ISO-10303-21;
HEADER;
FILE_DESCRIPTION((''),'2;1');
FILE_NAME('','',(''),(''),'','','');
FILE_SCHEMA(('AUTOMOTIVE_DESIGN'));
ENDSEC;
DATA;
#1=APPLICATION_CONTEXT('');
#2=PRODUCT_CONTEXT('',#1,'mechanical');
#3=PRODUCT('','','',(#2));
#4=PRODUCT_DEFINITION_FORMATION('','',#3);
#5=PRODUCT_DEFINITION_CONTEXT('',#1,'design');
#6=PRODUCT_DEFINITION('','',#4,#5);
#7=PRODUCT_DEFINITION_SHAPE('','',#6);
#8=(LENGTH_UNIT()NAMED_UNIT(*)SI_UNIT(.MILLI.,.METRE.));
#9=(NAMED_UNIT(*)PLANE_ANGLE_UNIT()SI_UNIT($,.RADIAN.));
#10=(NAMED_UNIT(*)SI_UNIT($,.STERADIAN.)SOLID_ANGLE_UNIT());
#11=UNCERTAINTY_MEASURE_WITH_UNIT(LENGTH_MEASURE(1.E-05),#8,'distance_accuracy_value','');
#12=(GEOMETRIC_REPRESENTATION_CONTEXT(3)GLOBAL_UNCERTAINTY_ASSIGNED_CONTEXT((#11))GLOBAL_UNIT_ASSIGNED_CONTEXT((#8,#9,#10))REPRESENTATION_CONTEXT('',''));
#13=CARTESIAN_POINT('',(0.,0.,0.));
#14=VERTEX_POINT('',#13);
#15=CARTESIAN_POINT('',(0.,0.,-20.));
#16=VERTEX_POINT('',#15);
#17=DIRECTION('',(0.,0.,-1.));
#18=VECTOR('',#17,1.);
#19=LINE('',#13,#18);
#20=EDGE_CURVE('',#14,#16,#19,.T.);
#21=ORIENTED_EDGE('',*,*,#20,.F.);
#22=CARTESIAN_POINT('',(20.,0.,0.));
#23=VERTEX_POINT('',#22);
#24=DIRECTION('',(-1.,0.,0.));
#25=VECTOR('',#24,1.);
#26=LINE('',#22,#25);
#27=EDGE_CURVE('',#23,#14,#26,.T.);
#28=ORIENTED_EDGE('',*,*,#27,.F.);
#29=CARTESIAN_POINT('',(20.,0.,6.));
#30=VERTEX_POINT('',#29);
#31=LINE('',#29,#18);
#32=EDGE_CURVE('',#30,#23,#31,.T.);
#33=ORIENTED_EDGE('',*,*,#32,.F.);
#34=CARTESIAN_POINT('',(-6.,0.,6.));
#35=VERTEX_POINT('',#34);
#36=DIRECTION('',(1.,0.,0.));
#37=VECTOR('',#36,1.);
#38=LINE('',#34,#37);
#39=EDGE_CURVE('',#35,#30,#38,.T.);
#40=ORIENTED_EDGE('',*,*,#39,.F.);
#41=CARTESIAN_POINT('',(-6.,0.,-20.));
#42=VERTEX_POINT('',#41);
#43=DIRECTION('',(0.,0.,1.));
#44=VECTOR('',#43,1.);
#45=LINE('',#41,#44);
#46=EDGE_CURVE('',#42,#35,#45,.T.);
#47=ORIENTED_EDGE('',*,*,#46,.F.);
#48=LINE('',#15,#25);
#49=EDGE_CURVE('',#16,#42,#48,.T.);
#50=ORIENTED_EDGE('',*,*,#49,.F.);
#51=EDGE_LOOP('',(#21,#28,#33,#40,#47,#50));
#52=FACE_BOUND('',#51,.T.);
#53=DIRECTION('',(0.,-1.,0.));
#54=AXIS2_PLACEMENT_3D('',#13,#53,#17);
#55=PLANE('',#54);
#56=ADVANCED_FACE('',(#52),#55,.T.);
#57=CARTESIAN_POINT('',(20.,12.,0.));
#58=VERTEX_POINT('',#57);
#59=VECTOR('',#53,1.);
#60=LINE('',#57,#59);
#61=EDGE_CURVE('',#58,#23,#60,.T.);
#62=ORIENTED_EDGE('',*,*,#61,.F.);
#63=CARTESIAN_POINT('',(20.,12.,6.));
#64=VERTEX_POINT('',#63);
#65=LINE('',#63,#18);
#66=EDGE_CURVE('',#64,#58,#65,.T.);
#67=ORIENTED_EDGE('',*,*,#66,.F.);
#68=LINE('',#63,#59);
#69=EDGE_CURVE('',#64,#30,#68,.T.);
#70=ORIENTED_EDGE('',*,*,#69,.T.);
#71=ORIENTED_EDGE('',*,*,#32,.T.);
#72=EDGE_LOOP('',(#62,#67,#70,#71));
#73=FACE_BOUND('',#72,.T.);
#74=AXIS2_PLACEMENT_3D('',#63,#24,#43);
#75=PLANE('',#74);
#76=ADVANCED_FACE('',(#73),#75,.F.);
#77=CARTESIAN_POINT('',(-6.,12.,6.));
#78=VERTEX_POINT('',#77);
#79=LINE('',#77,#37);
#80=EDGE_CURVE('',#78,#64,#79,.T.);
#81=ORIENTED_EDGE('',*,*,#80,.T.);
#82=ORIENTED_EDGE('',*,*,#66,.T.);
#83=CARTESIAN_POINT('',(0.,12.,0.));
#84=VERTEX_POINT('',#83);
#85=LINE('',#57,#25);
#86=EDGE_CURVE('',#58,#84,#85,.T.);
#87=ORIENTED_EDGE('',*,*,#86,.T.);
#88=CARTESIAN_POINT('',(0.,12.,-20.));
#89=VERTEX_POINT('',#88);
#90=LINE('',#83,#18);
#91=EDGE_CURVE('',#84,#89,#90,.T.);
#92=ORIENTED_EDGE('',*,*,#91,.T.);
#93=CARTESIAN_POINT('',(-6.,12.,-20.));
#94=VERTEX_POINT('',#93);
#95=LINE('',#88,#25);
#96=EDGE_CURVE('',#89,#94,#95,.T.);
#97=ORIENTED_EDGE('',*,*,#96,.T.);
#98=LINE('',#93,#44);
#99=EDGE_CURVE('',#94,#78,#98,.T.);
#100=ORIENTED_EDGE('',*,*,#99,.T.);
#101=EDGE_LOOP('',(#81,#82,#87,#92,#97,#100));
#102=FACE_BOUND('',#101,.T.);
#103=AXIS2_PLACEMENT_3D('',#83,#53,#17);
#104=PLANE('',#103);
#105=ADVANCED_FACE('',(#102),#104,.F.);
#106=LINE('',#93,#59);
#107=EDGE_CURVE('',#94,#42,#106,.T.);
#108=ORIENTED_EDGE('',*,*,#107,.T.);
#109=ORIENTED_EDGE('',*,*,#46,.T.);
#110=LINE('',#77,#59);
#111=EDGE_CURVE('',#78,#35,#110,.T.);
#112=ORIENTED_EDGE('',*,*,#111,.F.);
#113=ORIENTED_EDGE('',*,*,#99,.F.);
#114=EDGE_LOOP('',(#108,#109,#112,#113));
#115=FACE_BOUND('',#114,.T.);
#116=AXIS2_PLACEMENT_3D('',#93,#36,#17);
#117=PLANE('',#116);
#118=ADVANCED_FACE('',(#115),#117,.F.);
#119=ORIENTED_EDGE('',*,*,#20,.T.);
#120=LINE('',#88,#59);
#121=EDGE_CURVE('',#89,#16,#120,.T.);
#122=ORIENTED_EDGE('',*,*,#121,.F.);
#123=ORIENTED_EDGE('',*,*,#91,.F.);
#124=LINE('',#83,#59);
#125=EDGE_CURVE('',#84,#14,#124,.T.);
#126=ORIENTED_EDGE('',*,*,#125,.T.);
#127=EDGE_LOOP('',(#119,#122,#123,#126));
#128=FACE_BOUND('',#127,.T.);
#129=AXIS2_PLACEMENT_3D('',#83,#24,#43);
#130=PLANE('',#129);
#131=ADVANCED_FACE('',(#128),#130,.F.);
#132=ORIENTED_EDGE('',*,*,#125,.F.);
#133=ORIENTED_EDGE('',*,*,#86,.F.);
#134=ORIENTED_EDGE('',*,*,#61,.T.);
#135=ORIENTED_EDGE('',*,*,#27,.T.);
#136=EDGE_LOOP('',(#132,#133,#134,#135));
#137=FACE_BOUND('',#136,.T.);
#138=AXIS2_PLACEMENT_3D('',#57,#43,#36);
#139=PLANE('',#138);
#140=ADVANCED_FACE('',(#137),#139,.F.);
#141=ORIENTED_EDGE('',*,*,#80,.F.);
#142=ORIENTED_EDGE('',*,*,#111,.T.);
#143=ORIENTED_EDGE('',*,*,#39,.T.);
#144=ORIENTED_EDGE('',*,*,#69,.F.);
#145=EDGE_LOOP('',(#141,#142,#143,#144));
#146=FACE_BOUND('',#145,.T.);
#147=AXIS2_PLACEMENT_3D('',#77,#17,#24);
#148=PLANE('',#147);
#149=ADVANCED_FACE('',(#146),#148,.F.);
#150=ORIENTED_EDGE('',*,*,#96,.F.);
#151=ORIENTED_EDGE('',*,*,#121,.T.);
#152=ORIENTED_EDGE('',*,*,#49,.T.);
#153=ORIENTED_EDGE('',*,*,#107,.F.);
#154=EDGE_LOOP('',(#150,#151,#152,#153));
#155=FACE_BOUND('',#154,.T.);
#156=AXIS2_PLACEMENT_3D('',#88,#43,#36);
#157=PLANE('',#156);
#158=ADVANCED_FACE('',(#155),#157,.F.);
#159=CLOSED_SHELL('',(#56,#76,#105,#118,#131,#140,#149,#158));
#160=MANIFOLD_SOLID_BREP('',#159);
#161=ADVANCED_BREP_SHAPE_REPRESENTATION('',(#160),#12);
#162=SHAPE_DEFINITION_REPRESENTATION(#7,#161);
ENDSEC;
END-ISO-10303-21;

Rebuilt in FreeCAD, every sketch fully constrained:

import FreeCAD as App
import Part
import Sketcher
from FreeCAD import Vector
Q = App.Units.Quantity


def add_polygon(sketch, points):
    """Adds a closed chain of lines whose ends are joined by coincident constraints."""
    first, n = sketch.GeometryCount, len(points)
    for a, b in zip(points, points[1:] + points[:1]):
        sketch.addGeometry(Part.LineSegment(App.Vector(*a, 0), App.Vector(*b, 0)), False)
    for i in range(n):
        sketch.addConstraint(Sketcher.Constraint("Coincident", first + i, 2, first + (i + 1) % n, 1))

doc = App.newDocument("Part")
body = doc.addObject("PartDesign::Body", "Body")

sketch1 = doc.addObject("Sketcher::SketchObject", "Sketch")
body.addObject(sketch1)
sketch1.AttachmentSupport = (doc.XZ_Plane, [""])
sketch1.MapMode = "FlatFace"
add_polygon(sketch1, [(0, 0), (0, -20), (-6, -20), (-6, 6), (20, 6), (20, 0)])
sketch1.addConstraint([
    Sketcher.Constraint("Vertical", 0),
    Sketcher.Constraint("Horizontal", 1),
    Sketcher.Constraint("Vertical", 2),
    Sketcher.Constraint("Horizontal", 3),
    Sketcher.Constraint("Vertical", 4),
    Sketcher.Constraint("Horizontal", 5),
    Sketcher.Constraint("Coincident", 5, 2, -1, 1),
    Sketcher.Constraint("Equal", 5, 0),
    Sketcher.Constraint("Equal", 3, 2),
    Sketcher.Constraint("DistanceX", 1, 2, 1, 1, Q("6 mm")),
    Sketcher.Constraint("DistanceX", 3, 1, 3, 2, Q("26 mm")),
])
pad1 = doc.addObject("PartDesign::Pad", "Pad")
body.addObject(pad1)
pad1.Profile = sketch1
pad1.Length = 12
pad1.Reversed = True

doc.recompute()
